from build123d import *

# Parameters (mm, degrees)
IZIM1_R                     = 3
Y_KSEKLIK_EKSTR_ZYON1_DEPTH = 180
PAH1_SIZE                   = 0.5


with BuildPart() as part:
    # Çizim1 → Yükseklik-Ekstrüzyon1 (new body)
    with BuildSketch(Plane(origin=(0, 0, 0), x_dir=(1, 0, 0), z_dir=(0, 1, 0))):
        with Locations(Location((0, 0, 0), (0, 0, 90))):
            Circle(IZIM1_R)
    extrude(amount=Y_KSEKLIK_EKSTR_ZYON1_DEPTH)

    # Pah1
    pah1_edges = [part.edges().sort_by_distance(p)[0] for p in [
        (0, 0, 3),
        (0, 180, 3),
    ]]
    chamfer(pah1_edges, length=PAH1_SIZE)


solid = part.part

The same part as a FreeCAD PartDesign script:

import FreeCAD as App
import Part
import Sketcher

V = App.Vector
Q = App.Units.Quantity


def edges_at(feature, points):
    """Names of the edges that pass closest to the given points."""
    edges = feature.Shape.Edges
    near = lambda p: min(range(len(edges)), key=lambda i: edges[i].distToShape(Part.Vertex(*p))[0])
    return sorted({f"Edge{near(p) + 1}" for p in points})

doc = App.newDocument("Part")
body = doc.addObject("PartDesign::Body", "Body")

sketch1 = body.newObject("Sketcher::SketchObject", "Sketch")
sketch1.AttachmentSupport = (doc.getObject("XZ_Plane"), [""])
sketch1.MapMode = "FlatFace"
sketch1.addGeometry(Part.Circle(V(0, 0, 0), V(0, 0, 1), 3), False)
sketch1.addConstraint([
    Sketcher.Constraint("Coincident", 0, 3, -1, 1),
    Sketcher.Constraint("Diameter", 0, Q("6 mm")),
])
pad1 = body.newObject("PartDesign::Pad", "Pad")
pad1.Profile = sketch1
pad1.Length = 180
pad1.Reversed = True
doc.recompute()

chamfer = body.newObject("PartDesign::Chamfer", "Chamfer")
chamfer.Base = (pad1, edges_at(pad1, [(0, 0, 3), (0, 180, 3)]))
chamfer.Size = 0.5

doc.recompute()
